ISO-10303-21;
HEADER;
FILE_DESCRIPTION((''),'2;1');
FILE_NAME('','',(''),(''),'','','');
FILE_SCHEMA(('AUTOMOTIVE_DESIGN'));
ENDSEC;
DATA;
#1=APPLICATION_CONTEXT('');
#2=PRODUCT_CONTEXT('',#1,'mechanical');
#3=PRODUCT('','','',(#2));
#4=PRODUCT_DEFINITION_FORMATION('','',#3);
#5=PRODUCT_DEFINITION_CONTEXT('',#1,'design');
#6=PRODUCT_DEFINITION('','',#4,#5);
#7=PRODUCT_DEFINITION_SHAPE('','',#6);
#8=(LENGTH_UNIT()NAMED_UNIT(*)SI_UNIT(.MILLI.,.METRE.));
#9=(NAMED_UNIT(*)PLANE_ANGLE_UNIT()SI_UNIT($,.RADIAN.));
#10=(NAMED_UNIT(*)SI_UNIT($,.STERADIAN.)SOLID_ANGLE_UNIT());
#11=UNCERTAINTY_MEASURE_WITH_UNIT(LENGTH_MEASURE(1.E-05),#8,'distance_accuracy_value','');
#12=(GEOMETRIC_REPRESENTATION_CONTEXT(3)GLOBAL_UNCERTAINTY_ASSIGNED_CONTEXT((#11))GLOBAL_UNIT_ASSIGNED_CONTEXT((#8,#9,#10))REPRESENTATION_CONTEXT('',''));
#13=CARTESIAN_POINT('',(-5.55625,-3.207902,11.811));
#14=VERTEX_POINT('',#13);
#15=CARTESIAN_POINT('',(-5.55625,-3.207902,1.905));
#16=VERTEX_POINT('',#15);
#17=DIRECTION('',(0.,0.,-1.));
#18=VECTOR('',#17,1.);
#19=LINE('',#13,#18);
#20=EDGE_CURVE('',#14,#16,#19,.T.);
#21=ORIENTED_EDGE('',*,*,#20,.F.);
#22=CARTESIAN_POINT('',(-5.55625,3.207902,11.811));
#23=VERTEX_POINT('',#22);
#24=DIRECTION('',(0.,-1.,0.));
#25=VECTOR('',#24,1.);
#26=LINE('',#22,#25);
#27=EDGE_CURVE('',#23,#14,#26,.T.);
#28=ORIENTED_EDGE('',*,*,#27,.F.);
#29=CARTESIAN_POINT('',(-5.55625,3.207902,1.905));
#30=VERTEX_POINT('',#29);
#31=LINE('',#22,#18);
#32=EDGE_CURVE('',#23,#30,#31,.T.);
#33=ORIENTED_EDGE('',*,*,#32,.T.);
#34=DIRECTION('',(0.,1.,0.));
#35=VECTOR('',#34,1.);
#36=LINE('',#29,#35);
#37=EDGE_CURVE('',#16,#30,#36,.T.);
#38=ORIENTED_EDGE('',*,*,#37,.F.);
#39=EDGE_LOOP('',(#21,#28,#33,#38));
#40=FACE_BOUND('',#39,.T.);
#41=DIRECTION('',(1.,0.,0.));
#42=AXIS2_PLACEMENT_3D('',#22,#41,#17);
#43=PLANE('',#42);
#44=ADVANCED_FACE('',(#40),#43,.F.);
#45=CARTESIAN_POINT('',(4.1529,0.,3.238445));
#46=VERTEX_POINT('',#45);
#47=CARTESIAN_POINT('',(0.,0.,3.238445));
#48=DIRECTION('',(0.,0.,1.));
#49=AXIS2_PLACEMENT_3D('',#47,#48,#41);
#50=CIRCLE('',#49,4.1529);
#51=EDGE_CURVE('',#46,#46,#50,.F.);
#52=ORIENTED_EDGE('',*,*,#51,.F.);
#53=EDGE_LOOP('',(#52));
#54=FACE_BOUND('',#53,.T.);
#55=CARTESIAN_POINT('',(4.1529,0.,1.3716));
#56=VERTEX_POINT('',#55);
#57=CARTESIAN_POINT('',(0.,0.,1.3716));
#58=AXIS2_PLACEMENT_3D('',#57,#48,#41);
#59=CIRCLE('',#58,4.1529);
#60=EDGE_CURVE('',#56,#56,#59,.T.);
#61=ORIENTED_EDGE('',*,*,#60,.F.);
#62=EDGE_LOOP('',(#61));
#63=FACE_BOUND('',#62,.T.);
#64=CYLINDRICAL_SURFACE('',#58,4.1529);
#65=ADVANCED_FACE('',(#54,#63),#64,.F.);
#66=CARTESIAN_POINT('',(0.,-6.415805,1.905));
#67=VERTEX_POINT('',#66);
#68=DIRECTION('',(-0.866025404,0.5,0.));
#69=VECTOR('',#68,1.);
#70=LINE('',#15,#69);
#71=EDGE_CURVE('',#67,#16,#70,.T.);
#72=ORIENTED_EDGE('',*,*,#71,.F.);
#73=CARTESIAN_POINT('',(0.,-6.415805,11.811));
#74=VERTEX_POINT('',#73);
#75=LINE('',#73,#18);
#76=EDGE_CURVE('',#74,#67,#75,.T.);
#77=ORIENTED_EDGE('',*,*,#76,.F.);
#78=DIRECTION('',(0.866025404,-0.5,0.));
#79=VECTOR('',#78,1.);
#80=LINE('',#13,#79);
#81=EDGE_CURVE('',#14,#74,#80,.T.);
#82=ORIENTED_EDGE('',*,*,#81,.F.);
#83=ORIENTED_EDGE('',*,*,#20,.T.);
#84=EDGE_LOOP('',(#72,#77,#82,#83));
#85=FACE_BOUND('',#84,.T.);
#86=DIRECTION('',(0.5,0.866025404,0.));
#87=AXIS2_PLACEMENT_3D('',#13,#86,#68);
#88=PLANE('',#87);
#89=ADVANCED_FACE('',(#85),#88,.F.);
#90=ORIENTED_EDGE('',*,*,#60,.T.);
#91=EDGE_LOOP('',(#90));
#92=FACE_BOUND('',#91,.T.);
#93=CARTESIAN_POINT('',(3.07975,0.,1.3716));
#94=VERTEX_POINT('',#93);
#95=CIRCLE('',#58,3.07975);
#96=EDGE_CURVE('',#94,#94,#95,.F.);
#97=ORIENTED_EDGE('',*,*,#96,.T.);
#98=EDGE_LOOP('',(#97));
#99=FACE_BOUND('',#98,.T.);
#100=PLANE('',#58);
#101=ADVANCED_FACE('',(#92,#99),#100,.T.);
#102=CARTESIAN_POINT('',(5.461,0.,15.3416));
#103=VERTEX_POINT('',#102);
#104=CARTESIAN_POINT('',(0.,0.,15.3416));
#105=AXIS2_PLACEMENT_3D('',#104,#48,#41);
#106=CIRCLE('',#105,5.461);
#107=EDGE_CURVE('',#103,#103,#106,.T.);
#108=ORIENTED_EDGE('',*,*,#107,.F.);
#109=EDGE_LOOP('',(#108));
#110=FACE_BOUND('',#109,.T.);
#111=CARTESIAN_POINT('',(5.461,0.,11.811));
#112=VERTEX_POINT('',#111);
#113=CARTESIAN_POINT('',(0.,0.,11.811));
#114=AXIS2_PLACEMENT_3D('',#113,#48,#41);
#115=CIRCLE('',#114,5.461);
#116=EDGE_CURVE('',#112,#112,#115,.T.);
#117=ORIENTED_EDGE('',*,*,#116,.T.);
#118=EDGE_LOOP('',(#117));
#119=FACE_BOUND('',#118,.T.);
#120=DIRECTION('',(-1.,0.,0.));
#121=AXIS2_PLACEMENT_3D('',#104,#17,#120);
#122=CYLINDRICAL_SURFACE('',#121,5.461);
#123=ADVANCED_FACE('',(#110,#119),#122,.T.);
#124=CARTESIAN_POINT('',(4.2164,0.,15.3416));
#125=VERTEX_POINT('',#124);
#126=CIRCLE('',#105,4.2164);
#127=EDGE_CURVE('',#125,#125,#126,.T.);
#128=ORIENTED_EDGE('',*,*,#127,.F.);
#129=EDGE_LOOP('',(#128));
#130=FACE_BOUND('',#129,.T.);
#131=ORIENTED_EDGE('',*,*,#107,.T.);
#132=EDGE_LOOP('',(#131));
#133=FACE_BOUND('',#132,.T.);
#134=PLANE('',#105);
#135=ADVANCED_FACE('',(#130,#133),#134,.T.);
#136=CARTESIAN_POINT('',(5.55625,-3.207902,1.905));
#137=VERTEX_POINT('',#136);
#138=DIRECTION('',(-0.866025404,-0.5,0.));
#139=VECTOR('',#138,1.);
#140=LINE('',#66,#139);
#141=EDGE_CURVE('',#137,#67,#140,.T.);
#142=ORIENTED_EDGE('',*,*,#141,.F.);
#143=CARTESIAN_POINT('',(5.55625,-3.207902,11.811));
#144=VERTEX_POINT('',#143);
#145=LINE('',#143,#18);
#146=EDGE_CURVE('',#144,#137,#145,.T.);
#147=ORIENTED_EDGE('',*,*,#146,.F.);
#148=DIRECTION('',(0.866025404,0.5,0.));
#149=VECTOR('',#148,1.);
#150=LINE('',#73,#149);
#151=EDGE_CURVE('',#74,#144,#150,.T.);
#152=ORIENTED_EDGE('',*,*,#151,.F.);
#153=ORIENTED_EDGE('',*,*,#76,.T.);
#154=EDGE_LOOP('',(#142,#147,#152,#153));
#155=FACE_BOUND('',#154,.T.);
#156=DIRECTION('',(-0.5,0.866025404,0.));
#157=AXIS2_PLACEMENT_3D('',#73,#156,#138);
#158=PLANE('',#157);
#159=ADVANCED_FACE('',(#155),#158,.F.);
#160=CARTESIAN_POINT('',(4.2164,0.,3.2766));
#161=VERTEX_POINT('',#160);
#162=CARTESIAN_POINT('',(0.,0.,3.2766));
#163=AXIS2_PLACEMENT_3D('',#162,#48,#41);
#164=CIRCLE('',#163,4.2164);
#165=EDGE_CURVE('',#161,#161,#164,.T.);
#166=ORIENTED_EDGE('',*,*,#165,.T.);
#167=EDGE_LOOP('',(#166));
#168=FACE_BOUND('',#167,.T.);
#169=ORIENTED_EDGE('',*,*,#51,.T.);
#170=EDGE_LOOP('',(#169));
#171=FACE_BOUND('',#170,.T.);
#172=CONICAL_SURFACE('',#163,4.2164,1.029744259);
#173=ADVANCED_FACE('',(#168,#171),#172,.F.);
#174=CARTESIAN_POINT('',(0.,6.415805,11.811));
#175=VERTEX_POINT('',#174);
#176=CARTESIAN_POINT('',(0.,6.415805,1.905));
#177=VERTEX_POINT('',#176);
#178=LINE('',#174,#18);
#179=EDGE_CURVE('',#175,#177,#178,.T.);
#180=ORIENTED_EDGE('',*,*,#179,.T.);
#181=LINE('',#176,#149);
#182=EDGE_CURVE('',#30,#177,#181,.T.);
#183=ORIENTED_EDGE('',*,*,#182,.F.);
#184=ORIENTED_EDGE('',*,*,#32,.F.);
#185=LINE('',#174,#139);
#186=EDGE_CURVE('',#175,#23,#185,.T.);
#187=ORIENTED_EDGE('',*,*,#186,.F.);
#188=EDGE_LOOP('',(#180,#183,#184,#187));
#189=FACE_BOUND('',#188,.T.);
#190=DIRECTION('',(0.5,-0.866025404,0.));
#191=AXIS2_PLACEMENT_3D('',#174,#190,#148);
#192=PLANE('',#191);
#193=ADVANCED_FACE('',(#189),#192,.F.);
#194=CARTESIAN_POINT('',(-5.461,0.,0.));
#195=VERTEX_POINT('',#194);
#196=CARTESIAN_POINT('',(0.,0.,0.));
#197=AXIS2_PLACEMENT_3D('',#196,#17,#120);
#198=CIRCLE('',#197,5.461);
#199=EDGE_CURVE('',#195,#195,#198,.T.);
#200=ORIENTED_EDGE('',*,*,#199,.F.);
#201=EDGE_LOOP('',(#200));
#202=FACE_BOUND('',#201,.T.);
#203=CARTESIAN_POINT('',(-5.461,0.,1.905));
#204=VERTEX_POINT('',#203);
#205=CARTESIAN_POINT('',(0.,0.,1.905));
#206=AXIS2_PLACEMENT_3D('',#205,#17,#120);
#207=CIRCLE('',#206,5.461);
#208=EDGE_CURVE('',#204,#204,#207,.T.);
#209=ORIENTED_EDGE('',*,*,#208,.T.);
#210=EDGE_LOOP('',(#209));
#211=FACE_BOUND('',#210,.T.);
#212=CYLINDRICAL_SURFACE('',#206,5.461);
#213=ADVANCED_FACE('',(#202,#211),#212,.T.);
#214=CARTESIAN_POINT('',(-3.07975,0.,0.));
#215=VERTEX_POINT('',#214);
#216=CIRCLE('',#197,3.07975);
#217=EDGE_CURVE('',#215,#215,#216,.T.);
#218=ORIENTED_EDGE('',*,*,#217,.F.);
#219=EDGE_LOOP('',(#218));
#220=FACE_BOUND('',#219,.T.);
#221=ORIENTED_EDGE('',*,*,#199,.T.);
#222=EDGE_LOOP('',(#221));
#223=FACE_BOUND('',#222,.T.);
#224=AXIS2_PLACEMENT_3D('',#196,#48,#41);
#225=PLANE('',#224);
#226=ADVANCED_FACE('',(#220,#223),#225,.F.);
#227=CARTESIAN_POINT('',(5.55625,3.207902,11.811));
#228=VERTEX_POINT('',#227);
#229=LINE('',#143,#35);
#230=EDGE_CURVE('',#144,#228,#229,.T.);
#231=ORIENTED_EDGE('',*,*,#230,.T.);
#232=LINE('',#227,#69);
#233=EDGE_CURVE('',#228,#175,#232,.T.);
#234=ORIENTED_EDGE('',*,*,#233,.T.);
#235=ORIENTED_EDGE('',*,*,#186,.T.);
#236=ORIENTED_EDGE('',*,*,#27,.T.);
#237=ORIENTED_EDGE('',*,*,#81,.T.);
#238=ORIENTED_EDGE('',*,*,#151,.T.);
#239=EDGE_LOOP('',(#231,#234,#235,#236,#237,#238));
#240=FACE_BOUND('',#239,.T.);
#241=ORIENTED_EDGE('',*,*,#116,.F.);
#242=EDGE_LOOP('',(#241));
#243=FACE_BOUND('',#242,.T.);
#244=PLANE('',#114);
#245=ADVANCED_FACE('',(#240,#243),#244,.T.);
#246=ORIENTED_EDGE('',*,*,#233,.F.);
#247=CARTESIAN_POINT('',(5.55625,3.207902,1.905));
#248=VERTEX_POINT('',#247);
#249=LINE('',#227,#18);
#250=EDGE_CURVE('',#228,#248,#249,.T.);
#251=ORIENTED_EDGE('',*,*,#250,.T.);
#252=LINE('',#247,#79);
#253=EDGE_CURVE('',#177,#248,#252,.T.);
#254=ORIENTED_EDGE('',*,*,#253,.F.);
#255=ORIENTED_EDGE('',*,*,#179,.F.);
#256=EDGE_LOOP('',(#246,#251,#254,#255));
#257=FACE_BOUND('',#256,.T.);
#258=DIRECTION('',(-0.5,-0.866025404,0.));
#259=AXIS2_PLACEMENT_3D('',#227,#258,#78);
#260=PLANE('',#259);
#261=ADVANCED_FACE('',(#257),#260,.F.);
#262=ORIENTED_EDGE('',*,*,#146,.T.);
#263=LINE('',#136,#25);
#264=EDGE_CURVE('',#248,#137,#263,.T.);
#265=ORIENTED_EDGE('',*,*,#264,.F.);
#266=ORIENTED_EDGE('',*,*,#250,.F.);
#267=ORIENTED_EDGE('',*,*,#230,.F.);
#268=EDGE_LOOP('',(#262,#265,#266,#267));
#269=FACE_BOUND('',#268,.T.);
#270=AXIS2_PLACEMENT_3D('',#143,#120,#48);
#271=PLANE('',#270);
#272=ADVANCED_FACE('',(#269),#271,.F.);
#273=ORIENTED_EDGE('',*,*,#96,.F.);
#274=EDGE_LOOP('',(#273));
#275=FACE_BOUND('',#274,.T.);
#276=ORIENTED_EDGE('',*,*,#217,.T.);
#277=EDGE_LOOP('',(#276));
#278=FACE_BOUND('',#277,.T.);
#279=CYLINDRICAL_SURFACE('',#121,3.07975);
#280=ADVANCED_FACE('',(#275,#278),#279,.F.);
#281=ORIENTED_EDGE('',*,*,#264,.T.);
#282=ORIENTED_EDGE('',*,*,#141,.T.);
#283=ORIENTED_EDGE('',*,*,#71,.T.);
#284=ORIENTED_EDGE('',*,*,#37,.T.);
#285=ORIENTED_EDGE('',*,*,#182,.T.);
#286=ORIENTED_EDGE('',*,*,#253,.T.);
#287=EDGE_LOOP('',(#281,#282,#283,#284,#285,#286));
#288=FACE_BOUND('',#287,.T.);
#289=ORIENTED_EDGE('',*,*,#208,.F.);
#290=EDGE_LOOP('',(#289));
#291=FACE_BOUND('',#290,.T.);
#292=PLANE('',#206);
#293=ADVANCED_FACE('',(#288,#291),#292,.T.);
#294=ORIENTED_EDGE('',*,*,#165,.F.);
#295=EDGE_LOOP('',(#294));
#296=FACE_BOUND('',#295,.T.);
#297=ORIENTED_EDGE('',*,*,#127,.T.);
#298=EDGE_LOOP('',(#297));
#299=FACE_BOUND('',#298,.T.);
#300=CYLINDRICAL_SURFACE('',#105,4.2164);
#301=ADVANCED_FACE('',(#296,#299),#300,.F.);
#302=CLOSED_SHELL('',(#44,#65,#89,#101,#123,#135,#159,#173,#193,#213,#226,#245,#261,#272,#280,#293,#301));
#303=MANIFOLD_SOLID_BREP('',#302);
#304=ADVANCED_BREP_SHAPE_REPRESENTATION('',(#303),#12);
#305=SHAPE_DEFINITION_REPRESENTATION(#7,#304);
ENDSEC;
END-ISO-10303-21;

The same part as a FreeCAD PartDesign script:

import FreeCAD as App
import Part
import Sketcher

V = App.Vector
Q = App.Units.Quantity

doc = App.newDocument("Part")
body = doc.addObject("PartDesign::Body", "Body")

# Sketch on XY plane
sketch1 = body.newObject("Sketcher::SketchObject", "Sketch")
sketch1.AttachmentSupport = (doc.getObject("XY_Plane"), [""])
sketch1.MapMode = "FlatFace"
sketch1.addGeometry(Part.LineSegment(V(6, -3, 0), V(6, 3, 0)), False)
sketch1.addGeometry(Part.LineSegment(V(6, 3, 0), V(0, 6, 0)), False)
sketch1.addGeometry(Part.LineSegment(V(0, 6, 0), V(-6, 3, 0)), False)
sketch1.addGeometry(Part.LineSegment(V(-6, 3, 0), V(-6, -3, 0)), False)
sketch1.addGeometry(Part.LineSegment(V(-6, -3, 0), V(0, -6, 0)), False)
sketch1.addGeometry(Part.LineSegment(V(0, -6, 0), V(6, -3, 0)), False)
sketch1.addConstraint(Sketcher.Constraint("Coincident", 0, 2, 1, 1))
sketch1.addConstraint(Sketcher.Constraint("Coincident", 1, 2, 2, 1))
sketch1.addConstraint(Sketcher.Constraint("Coincident", 2, 2, 3, 1))
sketch1.addConstraint(Sketcher.Constraint("Coincident", 3, 2, 4, 1))
sketch1.addConstraint(Sketcher.Constraint("Coincident", 4, 2, 5, 1))
sketch1.addConstraint(Sketcher.Constraint("Coincident", 5, 2, 0, 1))
sketch1.addConstraint(Sketcher.Constraint("Vertical", 0))
sketch1.addConstraint(Sketcher.Constraint("Vertical", 3))
sketch1.addConstraint(Sketcher.Constraint("Symmetric", 0, 2, 3, 2, -1, 1))
sketch1.addConstraint(Sketcher.Constraint("Symmetric", 1, 2, 4, 2, -1, 1))
sketch1.addConstraint(Sketcher.Constraint("PointOnObject", 1, 2, -2))
sketch1.addConstraint(Sketcher.Constraint("Parallel", 2, 5))
sketch1.addConstraint(Sketcher.Constraint("Horizontal", 0, 2, 2, 2))
sketch1.addConstraint(Sketcher.Constraint("Angle", 1, Q("150 deg")))
sketch1.addConstraint(Sketcher.Constraint("DistanceX", -1, 1, 0, 2, Q("0.21875 in")))
sketch1.addConstraint(Sketcher.Constraint("DistanceY", 0, 1, 0, 2, Q("6.415805 mm")))
pad1 = body.newObject("PartDesign::Pad", "Pad")
pad1.Profile = sketch1
pad1.Length = Q("0.465 in")

# Sketch on XY plane
sketch2 = body.newObject("Sketcher::SketchObject", "Sketch001")
sketch2.AttachmentSupport = (doc.getObject("XY_Plane"), [""])
sketch2.MapMode = "FlatFace"
sketch2.AttachmentOffset = App.Placement(V(0, 0, 0.465 * 25.4), App.Rotation())
sketch2.addGeometry(Part.Circle(V(0, 0, 0), V(0, 0, 1), 5), False)
sketch2.addConstraint(Sketcher.Constraint("Coincident", 0, 3, -1, 1))
sketch2.addConstraint(Sketcher.Constraint("Diameter", 0, Q("0.43 in")))
pad2 = body.newObject("PartDesign::Pad", "Pad001")
pad2.Profile = sketch2
pad2.Length = Q("0.139 in")

# Sketch on XY plane
sketch3 = body.newObject("Sketcher::SketchObject", "Sketch002")
sketch3.AttachmentSupport = (doc.getObject("XY_Plane"), [""])
sketch3.MapMode = "FlatFace"
sketch3.AttachmentOffset = App.Placement(V(0, 0, 0.604 * 25.4), App.Rotation())
sketch3.addGeometry(Part.Circle(V(0, 0, 0), V(0, 0, 1), 4.2), False)
sketch3.addConstraint(Sketcher.Constraint("Coincident", 0, 3, -1, 1))
sketch3.addConstraint(Sketcher.Constraint("Diameter", 0, Q("0.332 in")))
doc.recompute()
hole = body.newObject("PartDesign::Hole", "Hole")
hole.Profile = sketch3
hole.ThreadType = "None"
hole.Diameter = Q("0.332 in")
hole.DepthType = "Dimension"
hole.Depth = Q("0.475 in")
hole.DrillPoint = "Angled"
hole.DrillPointAngle = 118

# Sketch on XY plane
sketch4 = body.newObject("Sketcher::SketchObject", "Sketch003")
sketch4.AttachmentSupport = (doc.getObject("XY_Plane"), [""])
sketch4.MapMode = "FlatFace"
sketch4.addGeometry(Part.Circle(V(0, 0, 0), V(0, 0, 1), 3.1), False)
sketch4.addConstraint(Sketcher.Constraint("Coincident", 0, 3, -1, 1))
sketch4.addConstraint(Sketcher.Constraint("Diameter", 0, Q("0.2425 in")))
pocket1 = body.newObject("PartDesign::Pocket", "Pocket")
pocket1.Profile = sketch4
pocket1.Type = "ThroughAll"
pocket1.Reversed = True

# Sketch on XY plane
sketch5 = body.newObject("Sketcher::SketchObject", "Sketch004")
sketch5.AttachmentSupport = (doc.getObject("XY_Plane"), [""])
sketch5.MapMode = "FlatFace"
sketch5.AttachmentOffset = App.Placement(V(0, 0, 0.229 * 25.4), App.Rotation())
sketch5.addGeometry(Part.Circle(V(0, 0, 0), V(0, 0, 1), 4.2), False)
sketch5.addConstraint(Sketcher.Constraint("Coincident", 0, 3, -1, 1))
sketch5.addConstraint(Sketcher.Constraint("Diameter", 0, Q("0.327 in")))
pocket2 = body.newObject("PartDesign::Pocket", "Pocket001")
pocket2.Profile = sketch5
pocket2.Length = Q("0.175 in")

# Sketch on XY plane
sketch6 = body.newObject("Sketcher::SketchObject", "Sketch005")
sketch6.AttachmentSupport = (doc.getObject("XY_Plane"), [""])
sketch6.MapMode = "FlatFace"
sketch6.addGeometry(Part.LineSegment(V(9, 10, 0), V(9, -10, 0)), False)
sketch6.addGeometry(Part.LineSegment(V(9, -10, 0), V(-9, -10, 0)), False)
sketch6.addGeometry(Part.LineSegment(V(-9, -10, 0), V(-9, 10, 0)), False)
sketch6.addGeometry(Part.LineSegment(V(-9, 10, 0), V(9, 10, 0)), False)
sketch6.addGeometry(Part.Circle(V(0, 0, 0), V(0, 0, 1), 5), False)
sketch6.addConstraint(Sketcher.Constraint("Coincident", 0, 2, 1, 1))
sketch6.addConstraint(Sketcher.Constraint("Coincident", 1, 2, 2, 1))
sketch6.addConstraint(Sketcher.Constraint("Coincident", 2, 2, 3, 1))
sketch6.addConstraint(Sketcher.Constraint("Coincident", 3, 2, 0, 1))
sketch6.addConstraint(Sketcher.Constraint("Vertical", 0))
sketch6.addConstraint(Sketcher.Constraint("Horizontal", 1))
sketch6.addConstraint(Sketcher.Constraint("Vertical", 2))
sketch6.addConstraint(Sketcher.Constraint("Horizontal", 3))
sketch6.addConstraint(Sketcher.Constraint("Coincident", 4, 3, -1, 1))
sketch6.addConstraint(Sketcher.Constraint("Symmetric", 0, 2, 2, 2, -1, 1))
sketch6.addConstraint(Sketcher.Constraint("Diameter", 4, Q("0.43 in")))
sketch6.addConstraint(Sketcher.Constraint("DistanceX", 1, 2, 1, 1, Q("17.688 mm")))
sketch6.addConstraint(Sketcher.Constraint("DistanceY", 0, 2, 0, 1, Q("19.408 mm")))
pocket3 = body.newObject("PartDesign::Pocket", "Pocket002")
pocket3.Profile = sketch6
pocket3.Length = Q("0.075 in")
pocket3.Reversed = True

doc.recompute()
